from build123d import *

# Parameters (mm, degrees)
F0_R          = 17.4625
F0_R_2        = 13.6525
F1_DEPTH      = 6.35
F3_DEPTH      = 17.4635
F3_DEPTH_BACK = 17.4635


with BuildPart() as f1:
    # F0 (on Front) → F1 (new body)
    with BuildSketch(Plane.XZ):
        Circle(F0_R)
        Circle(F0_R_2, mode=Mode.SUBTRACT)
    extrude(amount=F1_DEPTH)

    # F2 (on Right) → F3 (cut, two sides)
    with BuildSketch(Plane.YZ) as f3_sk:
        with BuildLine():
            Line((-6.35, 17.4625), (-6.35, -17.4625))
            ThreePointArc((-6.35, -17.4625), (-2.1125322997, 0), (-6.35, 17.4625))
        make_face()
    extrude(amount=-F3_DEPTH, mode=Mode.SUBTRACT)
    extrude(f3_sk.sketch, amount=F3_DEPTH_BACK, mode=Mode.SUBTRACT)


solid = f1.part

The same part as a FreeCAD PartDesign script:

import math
import FreeCAD as App
import Part
import Sketcher
Q = App.Units.Quantity

doc = App.newDocument("Part")
body = doc.addObject("PartDesign::Body", "Body")

sketch1 = doc.addObject("Sketcher::SketchObject", "Sketch")
body.addObject(sketch1)
sketch1.AttachmentSupport = (doc.XZ_Plane, [""])
sketch1.MapMode = "FlatFace"
sketch1.addGeometry([
    Part.Circle(App.Vector(0, 0, 0), App.Vector(0, 0, 1), 17.4625),
    Part.Circle(App.Vector(0, 0, 0), App.Vector(0, 0, 1), 13.6525),
], False)
sketch1.addConstraint([
    Sketcher.Constraint("Coincident", 0, 3, -1, 1),
    Sketcher.Constraint("Coincident", 1, 3, -1, 1),
    Sketcher.Constraint("Diameter", 0, Q("1.375 in")),
    Sketcher.Constraint("Diameter", 1, Q("1.075 in")),
])
pad1 = doc.addObject("PartDesign::Pad", "Pad")
body.addObject(pad1)
pad1.Profile = sketch1
pad1.Length = Q("0.25 in")

sketch2 = doc.addObject("Sketcher::SketchObject", "Sketch001")
body.addObject(sketch2)
sketch2.AttachmentSupport = (doc.YZ_Plane, [""])
sketch2.MapMode = "FlatFace"
sketch2.addGeometry([
    Part.LineSegment(App.Vector(-6.35, 17.4625, 0), App.Vector(-6.35, -17.4625, 0)),
    Part.ArcOfCircle(Part.Circle(App.Vector(-40.212532, 0, 0), App.Vector(0, 0, 1), 38.1), math.radians(-27.279613), math.radians(27.279613)),
], False)
sketch2.addConstraint([
    Sketcher.Constraint("Coincident", 0, 1, 1, 2),
    Sketcher.Constraint("Coincident", 1, 1, 0, 2),
    Sketcher.Constraint("Vertical", 0),
    Sketcher.Constraint("PointOnObject", 1, 3, -1),
    Sketcher.Constraint("Radius", 1, Q("1.5 in")),
    Sketcher.Constraint("DistanceY", 0, 2, 0, 1, Q("1.375 in")),
    Sketcher.Constraint("DistanceX", 0, 1, -1, 1, Q("0.25 in")),
])
pocket1 = doc.addObject("PartDesign::Pocket", "Pocket")
body.addObject(pocket1)
pocket1.Profile = sketch2
pocket1.Type = "ThroughAll"
pocket1.Midplane = True

doc.recompute()
